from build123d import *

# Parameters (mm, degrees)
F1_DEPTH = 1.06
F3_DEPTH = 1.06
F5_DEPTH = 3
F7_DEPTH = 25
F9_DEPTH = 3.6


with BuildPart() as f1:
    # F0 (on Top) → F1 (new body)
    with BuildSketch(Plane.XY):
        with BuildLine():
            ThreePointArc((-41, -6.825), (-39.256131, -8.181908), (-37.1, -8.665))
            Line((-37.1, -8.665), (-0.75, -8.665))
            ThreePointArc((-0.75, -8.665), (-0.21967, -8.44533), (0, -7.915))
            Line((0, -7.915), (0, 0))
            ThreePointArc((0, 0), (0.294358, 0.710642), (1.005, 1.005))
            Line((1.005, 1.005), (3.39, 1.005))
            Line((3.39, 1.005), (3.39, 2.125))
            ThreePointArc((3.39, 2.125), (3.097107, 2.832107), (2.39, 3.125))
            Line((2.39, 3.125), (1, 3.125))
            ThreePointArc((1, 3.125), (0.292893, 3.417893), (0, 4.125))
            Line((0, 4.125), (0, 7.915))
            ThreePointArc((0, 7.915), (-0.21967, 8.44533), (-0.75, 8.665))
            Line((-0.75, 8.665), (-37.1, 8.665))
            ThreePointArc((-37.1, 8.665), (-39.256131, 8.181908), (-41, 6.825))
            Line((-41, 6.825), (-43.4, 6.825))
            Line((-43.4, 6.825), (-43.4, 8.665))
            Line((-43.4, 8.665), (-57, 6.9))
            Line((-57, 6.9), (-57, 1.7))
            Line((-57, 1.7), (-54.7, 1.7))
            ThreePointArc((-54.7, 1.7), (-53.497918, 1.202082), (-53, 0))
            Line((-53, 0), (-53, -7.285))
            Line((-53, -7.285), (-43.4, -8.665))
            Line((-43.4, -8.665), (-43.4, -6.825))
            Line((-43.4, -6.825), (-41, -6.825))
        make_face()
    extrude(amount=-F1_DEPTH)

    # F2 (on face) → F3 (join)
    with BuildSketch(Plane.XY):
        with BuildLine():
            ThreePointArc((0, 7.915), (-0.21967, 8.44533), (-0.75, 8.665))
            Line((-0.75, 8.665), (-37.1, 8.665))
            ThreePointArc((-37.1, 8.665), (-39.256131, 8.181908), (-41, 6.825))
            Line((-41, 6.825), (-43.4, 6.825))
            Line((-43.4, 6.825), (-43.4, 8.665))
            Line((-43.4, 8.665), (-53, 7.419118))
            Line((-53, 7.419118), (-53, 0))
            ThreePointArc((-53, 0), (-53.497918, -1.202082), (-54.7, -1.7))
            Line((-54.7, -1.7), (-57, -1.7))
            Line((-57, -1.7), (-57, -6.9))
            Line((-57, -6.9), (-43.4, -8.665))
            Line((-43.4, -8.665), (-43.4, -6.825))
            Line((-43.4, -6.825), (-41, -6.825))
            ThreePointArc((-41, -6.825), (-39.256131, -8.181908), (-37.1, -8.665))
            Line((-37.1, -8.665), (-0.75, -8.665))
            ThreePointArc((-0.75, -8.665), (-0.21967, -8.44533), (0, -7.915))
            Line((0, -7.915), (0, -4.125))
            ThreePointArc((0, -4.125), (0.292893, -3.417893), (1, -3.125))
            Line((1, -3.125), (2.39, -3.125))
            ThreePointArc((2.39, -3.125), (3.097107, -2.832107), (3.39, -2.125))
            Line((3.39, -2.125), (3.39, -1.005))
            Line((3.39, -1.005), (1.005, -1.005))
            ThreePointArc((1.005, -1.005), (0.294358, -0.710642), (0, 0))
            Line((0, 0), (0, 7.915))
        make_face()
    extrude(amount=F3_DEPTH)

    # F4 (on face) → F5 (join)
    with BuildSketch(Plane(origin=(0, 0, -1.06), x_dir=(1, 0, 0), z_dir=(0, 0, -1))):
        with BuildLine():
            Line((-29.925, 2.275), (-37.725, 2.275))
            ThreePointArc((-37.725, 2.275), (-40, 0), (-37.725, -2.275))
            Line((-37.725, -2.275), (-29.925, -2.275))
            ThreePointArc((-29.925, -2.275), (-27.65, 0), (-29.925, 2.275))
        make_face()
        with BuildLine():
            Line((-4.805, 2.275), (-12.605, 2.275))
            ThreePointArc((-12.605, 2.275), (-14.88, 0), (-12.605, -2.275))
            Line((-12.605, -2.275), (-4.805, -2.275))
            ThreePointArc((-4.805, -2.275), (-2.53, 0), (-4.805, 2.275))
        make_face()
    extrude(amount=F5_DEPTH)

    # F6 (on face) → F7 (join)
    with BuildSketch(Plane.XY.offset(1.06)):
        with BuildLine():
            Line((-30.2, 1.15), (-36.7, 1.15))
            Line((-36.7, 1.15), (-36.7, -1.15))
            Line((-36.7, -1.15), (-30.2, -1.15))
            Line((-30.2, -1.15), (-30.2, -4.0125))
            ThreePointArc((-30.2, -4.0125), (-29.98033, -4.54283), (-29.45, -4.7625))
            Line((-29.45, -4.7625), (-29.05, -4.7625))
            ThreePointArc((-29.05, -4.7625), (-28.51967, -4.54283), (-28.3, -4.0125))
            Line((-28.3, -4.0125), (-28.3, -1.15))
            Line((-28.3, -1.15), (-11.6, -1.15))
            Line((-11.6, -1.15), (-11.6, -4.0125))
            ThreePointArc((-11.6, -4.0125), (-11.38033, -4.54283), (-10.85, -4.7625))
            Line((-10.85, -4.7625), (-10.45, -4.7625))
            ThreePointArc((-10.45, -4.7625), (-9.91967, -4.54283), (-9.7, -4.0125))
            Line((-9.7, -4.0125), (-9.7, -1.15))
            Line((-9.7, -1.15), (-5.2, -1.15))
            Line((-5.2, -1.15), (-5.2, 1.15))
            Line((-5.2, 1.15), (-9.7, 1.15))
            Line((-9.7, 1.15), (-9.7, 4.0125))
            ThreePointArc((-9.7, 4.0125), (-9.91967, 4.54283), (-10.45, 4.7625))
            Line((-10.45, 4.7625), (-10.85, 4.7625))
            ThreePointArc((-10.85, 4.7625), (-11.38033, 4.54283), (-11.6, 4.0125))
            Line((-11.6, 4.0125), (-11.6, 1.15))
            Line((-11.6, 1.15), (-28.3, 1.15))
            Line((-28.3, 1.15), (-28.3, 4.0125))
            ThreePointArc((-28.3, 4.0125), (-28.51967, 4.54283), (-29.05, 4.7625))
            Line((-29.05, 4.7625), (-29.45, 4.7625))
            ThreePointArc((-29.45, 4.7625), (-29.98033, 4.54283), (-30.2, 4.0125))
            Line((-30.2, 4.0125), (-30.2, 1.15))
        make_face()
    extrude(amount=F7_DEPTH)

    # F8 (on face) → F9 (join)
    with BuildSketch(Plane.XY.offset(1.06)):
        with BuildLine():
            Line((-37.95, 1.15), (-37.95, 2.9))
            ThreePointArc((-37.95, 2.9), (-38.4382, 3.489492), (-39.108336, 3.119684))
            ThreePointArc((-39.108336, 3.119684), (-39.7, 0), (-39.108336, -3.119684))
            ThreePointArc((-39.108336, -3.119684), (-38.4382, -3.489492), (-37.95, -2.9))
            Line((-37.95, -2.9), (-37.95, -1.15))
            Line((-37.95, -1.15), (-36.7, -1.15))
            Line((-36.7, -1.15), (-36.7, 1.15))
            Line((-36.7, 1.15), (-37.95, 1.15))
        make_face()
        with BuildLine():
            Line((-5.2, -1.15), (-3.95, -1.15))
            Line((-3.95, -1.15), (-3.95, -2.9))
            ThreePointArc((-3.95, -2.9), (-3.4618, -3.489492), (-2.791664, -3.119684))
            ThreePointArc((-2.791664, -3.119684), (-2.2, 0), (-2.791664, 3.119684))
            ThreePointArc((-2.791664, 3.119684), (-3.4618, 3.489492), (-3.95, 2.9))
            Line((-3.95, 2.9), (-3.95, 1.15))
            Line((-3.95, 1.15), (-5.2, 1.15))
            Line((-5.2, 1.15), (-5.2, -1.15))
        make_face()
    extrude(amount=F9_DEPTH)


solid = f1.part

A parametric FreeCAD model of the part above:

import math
import FreeCAD as App
import Part
import Sketcher

V = App.Vector
Q = App.Units.Quantity

doc = App.newDocument("Part")
body = doc.addObject("PartDesign::Body", "Body")

sketch1 = doc.addObject("Sketcher::SketchObject", "Sketch")
body.addObject(sketch1)
sketch1.AttachmentSupport = (doc.XY_Plane, [""])
sketch1.MapMode = "FlatFace"
sketch1.addGeometry([
    Part.ArcOfCircle(Part.Circle(V(-37.1, -3.6, 0), V(0, 0, 1), 5.1), math.radians(-141), math.radians(-90)),
    Part.LineSegment(V(-37.1, -8.7, 0), V(-0.8, -8.7, 0)),
    Part.ArcOfCircle(Part.Circle(V(-0.8, -7.9, 0), V(0, 0, 1), 0.8), math.radians(-90), math.radians(0)),
    Part.LineSegment(V(0, -7.9, 0), V(0, 0, 0)),
    Part.ArcOfCircle(Part.Circle(V(1, 0, 0), V(0, 0, 1), 1), math.radians(90), math.radians(180)),
    Part.LineSegment(V(1, 1, 0), V(3.4, 1, 0)),
    Part.LineSegment(V(3.4, 1, 0), V(3.4, 2.1, 0)),
    Part.ArcOfCircle(Part.Circle(V(2.4, 2.1, 0), V(0, 0, 1), 1), math.radians(0), math.radians(90)),
    Part.LineSegment(V(2.4, 3.1, 0), V(1, 3.1, 0)),
    Part.ArcOfCircle(Part.Circle(V(1, 4.1, 0), V(0, 0, 1), 1), math.radians(180), math.radians(270)),
    Part.LineSegment(V(0, 4.1, 0), V(0, 7.9, 0)),
    Part.ArcOfCircle(Part.Circle(V(-0.8, 7.9, 0), V(0, 0, 1), 0.8), math.radians(0), math.radians(90)),
    Part.LineSegment(V(-0.8, 8.7, 0), V(-37.1, 8.7, 0)),
    Part.ArcOfCircle(Part.Circle(V(-37.1, 3.6, 0), V(0, 0, 1), 5.1), math.radians(90), math.radians(141)),
    Part.LineSegment(V(-41, 6.8, 0), V(-43.4, 6.8, 0)),
    Part.LineSegment(V(-43.4, 6.8, 0), V(-43.4, 8.7, 0)),
    Part.LineSegment(V(-43.4, 8.7, 0), V(-57, 6.9, 0)),
    Part.LineSegment(V(-57, 6.9, 0), V(-57, 1.7, 0)),
    Part.LineSegment(V(-57, 1.7, 0), V(-54.7, 1.7, 0)),
    Part.ArcOfCircle(Part.Circle(V(-54.7, 0, 0), V(0, 0, 1), 1.7), math.radians(0), math.radians(90)),
    Part.LineSegment(V(-53, 0, 0), V(-53, -7.3, 0)),
    Part.LineSegment(V(-53, -7.3, 0), V(-43.4, -8.7, 0)),
    Part.LineSegment(V(-43.4, -8.7, 0), V(-43.4, -6.8, 0)),
    Part.LineSegment(V(-43.4, -6.8, 0), V(-41, -6.8, 0)),
], False)
sketch1.addConstraint([
    Sketcher.Constraint("Tangent", 0, 2, 1, 1),
    Sketcher.Constraint("Tangent", 1, 2, 2, 1),
    Sketcher.Constraint("Tangent", 2, 2, 3, 1),
    Sketcher.Constraint("Tangent", 3, 2, 4, 2),
    Sketcher.Constraint("Tangent", 4, 1, 5, 1),
    Sketcher.Constraint("Coincident", 5, 2, 6, 1),
    Sketcher.Constraint("Tangent", 6, 2, 7, 1),
    Sketcher.Constraint("Tangent", 7, 2, 8, 1),
    Sketcher.Constraint("Tangent", 8, 2, 9, 2),
    Sketcher.Constraint("Tangent", 9, 1, 10, 1),
    Sketcher.Constraint("Tangent", 10, 2, 11, 1),
    Sketcher.Constraint("Tangent", 11, 2, 12, 1),
    Sketcher.Constraint("Tangent", 12, 2, 13, 1),
    Sketcher.Constraint("Coincident", 13, 2, 14, 1),
    Sketcher.Constraint("Coincident", 14, 2, 15, 1),
    Sketcher.Constraint("Coincident", 15, 2, 16, 1),
    Sketcher.Constraint("Coincident", 16, 2, 17, 1),
    Sketcher.Constraint("Coincident", 17, 2, 18, 1),
    Sketcher.Constraint("Tangent", 18, 2, 19, 2),
    Sketcher.Constraint("Tangent", 19, 1, 20, 1),
    Sketcher.Constraint("Coincident", 20, 2, 21, 1),
    Sketcher.Constraint("Coincident", 21, 2, 22, 1),
    Sketcher.Constraint("Coincident", 22, 2, 23, 1),
    Sketcher.Constraint("Coincident", 23, 2, 0, 1),
    Sketcher.Constraint("Horizontal", 1),
    Sketcher.Constraint("Vertical", 3),
    Sketcher.Constraint("Horizontal", 5),
    Sketcher.Constraint("Vertical", 6),
    Sketcher.Constraint("Horizontal", 8),
    Sketcher.Constraint("Vertical", 10),
    Sketcher.Constraint("Horizontal", 12),
    Sketcher.Constraint("Horizontal", 14),
    Sketcher.Constraint("Vertical", 15),
    Sketcher.Constraint("Vertical", 17),
    Sketcher.Constraint("Horizontal", 18),
    Sketcher.Constraint("Vertical", 20),
    Sketcher.Constraint("Vertical", 22),
    Sketcher.Constraint("Horizontal", 23),
    Sketcher.Constraint("Coincident", 3, 2, -1, 1),
    Sketcher.Constraint("Equal", 7, 9),
    Sketcher.Constraint("Equal", 2, 11),
    Sketcher.Constraint("Equal", 0, 13),
    Sketcher.Constraint("Symmetric", 2, 2, 10, 2, -1, 1),
    Sketcher.Constraint("Symmetric", 15, 2, 21, 2, -1),
    Sketcher.Constraint("Symmetric", 13, 2, 23, 2, -1),
    Sketcher.Constraint("PointOnObject", 19, 3, -1),
    Sketcher.Constraint("Horizontal", 12, 2, 15, 2),
    Sketcher.Constraint("Radius", 7, Q("0.999999 mm")),
    Sketcher.Constraint("Radius", 19, Q("1.699998 mm")),
    Sketcher.Constraint("Radius", 2, Q("0.75 mm")),
    Sketcher.Constraint("DistanceX", 14, 2, 14, 1, Q("2.4 mm")),
    Sketcher.Constraint("DistanceX", 18, 1, 18, 2, Q("2.3 mm")),
    Sketcher.Constraint("DistanceY", 17, 2, 17, 1, Q("5.2 mm")),
    Sketcher.Constraint("DistanceX", 13, 2, -1, 1, Q("41 mm")),
    Sketcher.Constraint("DistanceX", 16, 2, -1, 1, Q("57 mm")),
    Sketcher.Constraint("Radius", 4, Q("1.005001 mm")),
    Sketcher.Constraint("DistanceX", 1, 1, 1, 2, Q("36.35 mm")),
    Sketcher.Constraint("DistanceX", 8, 2, 8, 1, Q("1.39 mm")),
    Sketcher.Constraint("DistanceY", 6, 1, 6, 2, Q("1.12 mm")),
    Sketcher.Constraint("DistanceY", 10, 1, 10, 2, Q("3.79 mm")),
    Sketcher.Constraint("DistanceY", 15, 1, 15, 2, Q("1.84 mm")),
    Sketcher.Constraint("DistanceY", 20, 2, 20, 1, Q("7.285 mm")),
])
pad1 = doc.addObject("PartDesign::Pad", "Pad")
body.addObject(pad1)
pad1.Profile = sketch1
pad1.Length = 1.06
pad1.Reversed = True

sketch2 = doc.addObject("Sketcher::SketchObject", "Sketch001")
body.addObject(sketch2)
sketch2.AttachmentSupport = (doc.XY_Plane, [""])
sketch2.MapMode = "FlatFace"
sketch2.addGeometry([
    Part.ArcOfCircle(Part.Circle(V(-0.8, 7.9, 0), V(0, 0, 1), 0.8), math.radians(0), math.radians(90)),
    Part.LineSegment(V(-0.8, 8.7, 0), V(-37.1, 8.7, 0)),
    Part.ArcOfCircle(Part.Circle(V(-37.1, 3.6, 0), V(0, 0, 1), 5.1), math.radians(90), math.radians(141)),
    Part.LineSegment(V(-41, 6.8, 0), V(-43.4, 6.8, 0)),
    Part.LineSegment(V(-43.4, 6.8, 0), V(-43.4, 8.7, 0)),
    Part.LineSegment(V(-43.4, 8.7, 0), V(-53, 7.4, 0)),
    Part.LineSegment(V(-53, 7.4, 0), V(-53, 0, 0)),
    Part.ArcOfCircle(Part.Circle(V(-54.7, 0, 0), V(0, 0, 1), 1.7), math.radians(-90), math.radians(0)),
    Part.LineSegment(V(-54.7, -1.7, 0), V(-57, -1.7, 0)),
    Part.LineSegment(V(-57, -1.7, 0), V(-57, -6.9, 0)),
    Part.LineSegment(V(-57, -6.9, 0), V(-43.4, -8.7, 0)),
    Part.LineSegment(V(-43.4, -8.7, 0), V(-43.4, -6.8, 0)),
    Part.LineSegment(V(-43.4, -6.8, 0), V(-41, -6.8, 0)),
    Part.ArcOfCircle(Part.Circle(V(-37.1, -3.6, 0), V(0, 0, 1), 5.1), math.radians(-141), math.radians(-90)),
    Part.LineSegment(V(-37.1, -8.7, 0), V(-0.8, -8.7, 0)),
    Part.ArcOfCircle(Part.Circle(V(-0.8, -7.9, 0), V(0, 0, 1), 0.8), math.radians(-90), math.radians(0)),
    Part.LineSegment(V(0, -7.9, 0), V(0, -4.1, 0)),
    Part.ArcOfCircle(Part.Circle(V(1, -4.1, 0), V(0, 0, 1), 1), math.radians(90), math.radians(180)),
    Part.LineSegment(V(1, -3.1, 0), V(2.4, -3.1, 0)),
    Part.ArcOfCircle(Part.Circle(V(2.4, -2.1, 0), V(0, 0, 1), 1), math.radians(-90), math.radians(0)),
    Part.LineSegment(V(3.4, -2.1, 0), V(3.4, -1, 0)),
    Part.LineSegment(V(3.4, -1, 0), V(1, -1, 0)),
    Part.ArcOfCircle(Part.Circle(V(1, 0, 0), V(0, 0, 1), 1), math.radians(-180), math.radians(-90)),
    Part.LineSegment(V(0, 0, 0), V(0, 7.9, 0)),
], False)
sketch2.addConstraint([
    Sketcher.Constraint("Tangent", 0, 2, 1, 1),
    Sketcher.Constraint("Tangent", 1, 2, 2, 1),
    Sketcher.Constraint("Coincident", 2, 2, 3, 1),
    Sketcher.Constraint("Coincident", 3, 2, 4, 1),
    Sketcher.Constraint("Coincident", 4, 2, 5, 1),
    Sketcher.Constraint("Coincident", 5, 2, 6, 1),
    Sketcher.Constraint("Tangent", 6, 2, 7, 2),
    Sketcher.Constraint("Tangent", 7, 1, 8, 1),
    Sketcher.Constraint("Coincident", 8, 2, 9, 1),
    Sketcher.Constraint("Coincident", 9, 2, 10, 1),
    Sketcher.Constraint("Coincident", 10, 2, 11, 1),
    Sketcher.Constraint("Coincident", 11, 2, 12, 1),
    Sketcher.Constraint("Coincident", 12, 2, 13, 1),
    Sketcher.Constraint("Tangent", 13, 2, 14, 1),
    Sketcher.Constraint("Tangent", 14, 2, 15, 1),
    Sketcher.Constraint("Tangent", 15, 2, 16, 1),
    Sketcher.Constraint("Tangent", 16, 2, 17, 2),
    Sketcher.Constraint("Tangent", 17, 1, 18, 1),
    Sketcher.Constraint("Tangent", 18, 2, 19, 1),
    Sketcher.Constraint("Tangent", 19, 2, 20, 1),
    Sketcher.Constraint("Coincident", 20, 2, 21, 1),
    Sketcher.Constraint("Tangent", 21, 2, 22, 2),
    Sketcher.Constraint("Tangent", 22, 1, 23, 1),
    Sketcher.Constraint("Tangent", 23, 2, 0, 1),
    Sketcher.Constraint("Horizontal", 1),
    Sketcher.Constraint("Horizontal", 3),
    Sketcher.Constraint("Vertical", 4),
    Sketcher.Constraint("Vertical", 6),
    Sketcher.Constraint("Horizontal", 8),
    Sketcher.Constraint("Vertical", 9),
    Sketcher.Constraint("Vertical", 11),
    Sketcher.Constraint("Horizontal", 12),
    Sketcher.Constraint("Horizontal", 14),
    Sketcher.Constraint("Vertical", 16),
    Sketcher.Constraint("Horizontal", 18),
    Sketcher.Constraint("Vertical", 20),
    Sketcher.Constraint("Horizontal", 21),
    Sketcher.Constraint("Vertical", 23),
    Sketcher.Constraint("Coincident", 22, 1, -1, 1),
    Sketcher.Constraint("Equal", 2, 13),
    Sketcher.Constraint("Equal", 0, 15),
    Sketcher.Constraint("Equal", 17, 19),
    Sketcher.Constraint("Symmetric", 15, 2, 23, 2, -1, 1),
    Sketcher.Constraint("Symmetric", 4, 2, 10, 2, -1),
    Sketcher.Constraint("Symmetric", 2, 2, 12, 2, -1),
    Sketcher.Constraint("PointOnObject", 7, 3, -1),
    Sketcher.Constraint("Horizontal", 1, 2, 4, 2),
    Sketcher.Constraint("Radius", 17, Q("0.999999 mm")),
    Sketcher.Constraint("Radius", 7, Q("1.699998 mm")),
    Sketcher.Constraint("Radius", 0, Q("0.75 mm")),
    Sketcher.Constraint("DistanceX", 3, 2, 3, 1, Q("2.4 mm")),
    Sketcher.Constraint("DistanceX", 8, 2, 8, 1, Q("2.3 mm")),
    Sketcher.Constraint("DistanceY", 9, 2, 9, 1, Q("5.2 mm")),
    Sketcher.Constraint("DistanceX", 2, 2, -1, 1, Q("41 mm")),
    Sketcher.Constraint("DistanceX", 5, 2, -1, 1, Q("53 mm")),
    Sketcher.Constraint("Radius", 22, Q("1.005001 mm")),
    Sketcher.Constraint("DistanceX", 1, 2, 1, 1, Q("36.35 mm")),
    Sketcher.Constraint("DistanceX", 18, 1, 18, 2, Q("1.39 mm")),
    Sketcher.Constraint("DistanceY", 4, 1, 4, 2, Q("1.84 mm")),
    Sketcher.Constraint("DistanceY", 16, 1, 16, 2, Q("3.79 mm")),
    Sketcher.Constraint("DistanceY", 20, 1, 20, 2, Q("1.12 mm")),
    Sketcher.Constraint("DistanceY", 6, 2, 6, 1, Q("7.419118 mm")),
])
pad2 = doc.addObject("PartDesign::Pad", "Pad001")
body.addObject(pad2)
pad2.Profile = sketch2
pad2.Length = 1.06

sketch3 = doc.addObject("Sketcher::SketchObject", "Sketch002")
body.addObject(sketch3)
sketch3.AttachmentSupport = (doc.XY_Plane, [""])
sketch3.MapMode = "FlatFace"
sketch3.AttachmentOffset = App.Placement(V(0, 0, -1.06), App.Rotation())
sketch3.addGeometry([
    Part.LineSegment(V(-29.9, -2.3, 0), V(-37.7, -2.3, 0)),
    Part.ArcOfCircle(Part.Circle(V(-37.7, 0, 0), V(0, 0, 1), 2.3), math.radians(90), math.radians(270)),
    Part.LineSegment(V(-37.7, 2.3, 0), V(-29.9, 2.3, 0)),
    Part.ArcOfCircle(Part.Circle(V(-29.9, 0, 0), V(0, 0, 1), 2.3), math.radians(-90), math.radians(90)),
    Part.LineSegment(V(-4.8, -2.3, 0), V(-12.6, -2.3, 0)),
    Part.ArcOfCircle(Part.Circle(V(-12.6, 0, 0), V(0, 0, 1), 2.3), math.radians(90), math.radians(270)),
    Part.LineSegment(V(-12.6, 2.3, 0), V(-4.8, 2.3, 0)),
    Part.ArcOfCircle(Part.Circle(V(-4.8, 0, 0), V(0, 0, 1), 2.3), math.radians(-90), math.radians(90)),
], False)
sketch3.addConstraint([
    Sketcher.Constraint("Tangent", 0, 2, 1, 2),
    Sketcher.Constraint("Tangent", 1, 1, 2, 1),
    Sketcher.Constraint("Tangent", 2, 2, 3, 2),
    Sketcher.Constraint("Tangent", 3, 1, 0, 1),
    Sketcher.Constraint("Tangent", 4, 2, 5, 2),
    Sketcher.Constraint("Tangent", 5, 1, 6, 1),
    Sketcher.Constraint("Tangent", 6, 2, 7, 2),
    Sketcher.Constraint("Tangent", 7, 1, 4, 1),
    Sketcher.Constraint("Horizontal", 0),
    Sketcher.Constraint("Horizontal", 2),
    Sketcher.Constraint("Horizontal", 4),
    Sketcher.Constraint("Horizontal", 6),
    Sketcher.Constraint("Equal", 3, 5),
    Sketcher.Constraint("PointOnObject", 1, 3, -1),
    Sketcher.Constraint("PointOnObject", 5, 3, -1),
    Sketcher.Constraint("Equal", 2, 4),
    Sketcher.Constraint("DistanceX", 0, 2, 0, 1, Q("7.8 mm")),
    Sketcher.Constraint("Radius", 1, Q("2.275 mm")),
    Sketcher.Constraint("DistanceX", 3, 3, 5, 3, Q("17.32 mm")),
    Sketcher.Constraint("DistanceX", 1, 3, -1, 1, Q("37.725 mm")),
])
pad3 = doc.addObject("PartDesign::Pad", "Pad002")
body.addObject(pad3)
pad3.Profile = sketch3
pad3.Length = 3
pad3.Reversed = True

sketch4 = doc.addObject("Sketcher::SketchObject", "Sketch003")
body.addObject(sketch4)
sketch4.AttachmentSupport = (doc.XY_Plane, [""])
sketch4.MapMode = "FlatFace"
sketch4.AttachmentOffset = App.Placement(V(0, 0, 1.06), App.Rotation())
sketch4.addGeometry([
    Part.LineSegment(V(-30.2, 1.15, 0), V(-36.7, 1.15, 0)),
    Part.LineSegment(V(-36.7, 1.15, 0), V(-36.7, -1.15, 0)),
    Part.LineSegment(V(-36.7, -1.15, 0), V(-30.2, -1.15, 0)),
    Part.LineSegment(V(-30.2, -1.15, 0), V(-30.2, -4.01, 0)),
    Part.ArcOfCircle(Part.Circle(V(-29.45, -4.01, 0), V(0, 0, 1), 0.75), math.radians(-180), math.radians(-90)),
    Part.LineSegment(V(-29.45, -4.76, 0), V(-29.05, -4.76, 0)),
    Part.ArcOfCircle(Part.Circle(V(-29.05, -4.01, 0), V(0, 0, 1), 0.75), math.radians(-90), math.radians(0)),
    Part.LineSegment(V(-28.3, -4.01, 0), V(-28.3, -1.15, 0)),
    Part.LineSegment(V(-28.3, -1.15, 0), V(-11.6, -1.15, 0)),
    Part.LineSegment(V(-11.6, -1.15, 0), V(-11.6, -4.01, 0)),
    Part.ArcOfCircle(Part.Circle(V(-10.85, -4.01, 0), V(0, 0, 1), 0.75), math.radians(-180), math.radians(-90)),
    Part.LineSegment(V(-10.85, -4.76, 0), V(-10.45, -4.76, 0)),
    Part.ArcOfCircle(Part.Circle(V(-10.45, -4.01, 0), V(0, 0, 1), 0.75), math.radians(-90), math.radians(0)),
    Part.LineSegment(V(-9.7, -4.01, 0), V(-9.7, -1.15, 0)),
    Part.LineSegment(V(-9.7, -1.15, 0), V(-5.2, -1.15, 0)),
    Part.LineSegment(V(-5.2, -1.15, 0), V(-5.2, 1.15, 0)),
    Part.LineSegment(V(-5.2, 1.15, 0), V(-9.7, 1.15, 0)),
    Part.LineSegment(V(-9.7, 1.15, 0), V(-9.7, 4.01, 0)),
    Part.ArcOfCircle(Part.Circle(V(-10.45, 4.01, 0), V(0, 0, 1), 0.75), math.radians(0), math.radians(90)),
    Part.LineSegment(V(-10.45, 4.76, 0), V(-10.85, 4.76, 0)),
    Part.ArcOfCircle(Part.Circle(V(-10.85, 4.01, 0), V(0, 0, 1), 0.75), math.radians(90), math.radians(180)),
    Part.LineSegment(V(-11.6, 4.01, 0), V(-11.6, 1.15, 0)),
    Part.LineSegment(V(-11.6, 1.15, 0), V(-28.3, 1.15, 0)),
    Part.LineSegment(V(-28.3, 1.15, 0), V(-28.3, 4.01, 0)),
    Part.ArcOfCircle(Part.Circle(V(-29.05, 4.01, 0), V(0, 0, 1), 0.75), math.radians(0), math.radians(90)),
    Part.LineSegment(V(-29.05, 4.76, 0), V(-29.45, 4.76, 0)),
    Part.ArcOfCircle(Part.Circle(V(-29.45, 4.01, 0), V(0, 0, 1), 0.75), math.radians(90), math.radians(180)),
    Part.LineSegment(V(-30.2, 4.01, 0), V(-30.2, 1.15, 0)),
], False)
sketch4.addConstraint([
    Sketcher.Constraint("Coincident", 0, 2, 1, 1),
    Sketcher.Constraint("Coincident", 1, 2, 2, 1),
    Sketcher.Constraint("Coincident", 2, 2, 3, 1),
    Sketcher.Constraint("Tangent", 3, 2, 4, 1),
    Sketcher.Constraint("Tangent", 4, 2, 5, 1),
    Sketcher.Constraint("Tangent", 5, 2, 6, 1),
    Sketcher.Constraint("Tangent", 6, 2, 7, 1),
    Sketcher.Constraint("Coincident", 7, 2, 8, 1),
    Sketcher.Constraint("Coincident", 8, 2, 9, 1),
    Sketcher.Constraint("Tangent", 9, 2, 10, 1),
    Sketcher.Constraint("Tangent", 10, 2, 11, 1),
    Sketcher.Constraint("Tangent", 11, 2, 12, 1),
    Sketcher.Constraint("Tangent", 12, 2, 13, 1),
    Sketcher.Constraint("Coincident", 13, 2, 14, 1),
    Sketcher.Constraint("Coincident", 14, 2, 15, 1),
    Sketcher.Constraint("Coincident", 15, 2, 16, 1),
    Sketcher.Constraint("Coincident", 16, 2, 17, 1),
    Sketcher.Constraint("Tangent", 17, 2, 18, 1),
    Sketcher.Constraint("Tangent", 18, 2, 19, 1),
    Sketcher.Constraint("Tangent", 19, 2, 20, 1),
    Sketcher.Constraint("Tangent", 20, 2, 21, 1),
    Sketcher.Constraint("Coincident", 21, 2, 22, 1),
    Sketcher.Constraint("Coincident", 22, 2, 23, 1),
    Sketcher.Constraint("Tangent", 23, 2, 24, 1),
    Sketcher.Constraint("Tangent", 24, 2, 25, 1),
    Sketcher.Constraint("Tangent", 25, 2, 26, 1),
    Sketcher.Constraint("Tangent", 26, 2, 27, 1),
    Sketcher.Constraint("Coincident", 27, 2, 0, 1),
    Sketcher.Constraint("Horizontal", 0),
    Sketcher.Constraint("Vertical", 1),
    Sketcher.Constraint("Horizontal", 2),
    Sketcher.Constraint("Vertical", 3),
    Sketcher.Constraint("Horizontal", 5),
    Sketcher.Constraint("Vertical", 7),
    Sketcher.Constraint("Horizontal", 8),
    Sketcher.Constraint("Vertical", 9),
    Sketcher.Constraint("Horizontal", 11),
    Sketcher.Constraint("Vertical", 13),
    Sketcher.Constraint("Horizontal", 14),
    Sketcher.Constraint("Vertical", 15),
    Sketcher.Constraint("Horizontal", 16),
    Sketcher.Constraint("Vertical", 17),
    Sketcher.Constraint("Horizontal", 19),
    Sketcher.Constraint("Vertical", 21),
    Sketcher.Constraint("Horizontal", 22),
    Sketcher.Constraint("Vertical", 23),
    Sketcher.Constraint("Horizontal", 25),
    Sketcher.Constraint("Vertical", 27),
    Sketcher.Constraint("Equal", 4, 6),
    Sketcher.Constraint("Equal", 6, 10),
    Sketcher.Constraint("Equal", 10, 12),
    Sketcher.Constraint("Equal", 12, 18),
    Sketcher.Constraint("Equal", 18, 20),
    Sketcher.Constraint("Equal", 20, 24),
    Sketcher.Constraint("Equal", 24, 26),
    Sketcher.Constraint("Symmetric", 12, 3, 18, 3, -1),
    Sketcher.Constraint("Symmetric", 6, 3, 24, 3, -1),
    Sketcher.Constraint("Symmetric", 8, 2, 21, 2, -1),
    Sketcher.Constraint("Symmetric", 2, 2, 27, 2, -1),
    Sketcher.Constraint("Horizontal", 6, 3, 10, 3),
    Sketcher.Constraint("Horizontal", 2, 2, 7, 2),
    Sketcher.Constraint("Horizontal", 8, 2, 13, 2),
    Sketcher.Constraint("Horizontal", 0, 2, 15, 2),
    Sketcher.Constraint("Equal", 5, 11),
    Sketcher.Constraint("Radius", 4, Q("0.75 mm")),
    Sketcher.Constraint("DistanceX", 0, 2, 0, 1, Q("6.5 mm")),
    Sketcher.Constraint("DistanceX", 5, 1, 5, 2, Q("0.4 mm")),
    Sketcher.Constraint("DistanceX", 8, 1, 8, 2, Q("16.7 mm")),
    Sketcher.Constraint("DistanceX", 14, 1, 14, 2, Q("4.5 mm")),
    Sketcher.Constraint("DistanceY", 1, 2, 1, 1, Q("2.3 mm")),
    Sketcher.Constraint("DistanceX", 0, 2, -1, 1, Q("36.7 mm")),
    Sketcher.Constraint("DistanceY", 3, 2, 3, 1, Q("2.8625 mm")),
])
pad4 = doc.addObject("PartDesign::Pad", "Pad003")
body.addObject(pad4)
pad4.Profile = sketch4
pad4.Length = 25

sketch5 = doc.addObject("Sketcher::SketchObject", "Sketch004")
body.addObject(sketch5)
sketch5.AttachmentSupport = (doc.XY_Plane, [""])
sketch5.MapMode = "FlatFace"
sketch5.AttachmentOffset = App.Placement(V(0, 0, 1.06), App.Rotation())
sketch5.addGeometry([
    Part.LineSegment(V(-38, 1.1, 0), V(-38, 2.9, 0)),
    Part.ArcOfCircle(Part.Circle(V(-38.6, 2.9, 0), V(0, 0, 1), 0.6), math.radians(0), math.radians(159)),
    Part.ArcOfCircle(Part.Circle(V(-31.2, 0, 0), V(0, 0, 1), 8.5), math.radians(159), math.radians(201)),
    Part.ArcOfCircle(Part.Circle(V(-38.6, -2.9, 0), V(0, 0, 1), 0.6), math.radians(-159), math.radians(0)),
    Part.LineSegment(V(-38, -2.9, 0), V(-38, -1.1, 0)),
    Part.LineSegment(V(-38, -1.1, 0), V(-36.7, -1.1, 0)),
    Part.LineSegment(V(-36.7, -1.1, 0), V(-36.7, 1.1, 0)),
    Part.LineSegment(V(-36.7, 1.1, 0), V(-38, 1.1, 0)),
    Part.LineSegment(V(-5.2, -1.1, 0), V(-4, -1.1, 0)),
    Part.LineSegment(V(-4, -1.1, 0), V(-4, -2.9, 0)),
    Part.ArcOfCircle(Part.Circle(V(-3.3, -2.9, 0), V(0, 0, 1), 0.6), math.radians(-180), math.radians(-21)),
    Part.ArcOfCircle(Part.Circle(V(-10.7, 0, 0), V(0, 0, 1), 8.5), math.radians(-21), math.radians(21)),
    Part.ArcOfCircle(Part.Circle(V(-3.3, 2.9, 0), V(0, 0, 1), 0.6), math.radians(21), math.radians(180)),
    Part.LineSegment(V(-4, 2.9, 0), V(-4, 1.1, 0)),
    Part.LineSegment(V(-4, 1.1, 0), V(-5.2, 1.1, 0)),
    Part.LineSegment(V(-5.2, 1.1, 0), V(-5.2, -1.1, 0)),
], False)
sketch5.addConstraint([
    Sketcher.Constraint("Tangent", 0, 2, 1, 1),
    Sketcher.Constraint("Tangent", 1, 2, 2, 1),
    Sketcher.Constraint("Tangent", 2, 2, 3, 1),
    Sketcher.Constraint("Tangent", 3, 2, 4, 1),
    Sketcher.Constraint("Coincident", 4, 2, 5, 1),
    Sketcher.Constraint("Coincident", 5, 2, 6, 1),
    Sketcher.Constraint("Coincident", 6, 2, 7, 1),
    Sketcher.Constraint("Coincident", 7, 2, 0, 1),
    Sketcher.Constraint("Coincident", 8, 2, 9, 1),
    Sketcher.Constraint("Tangent", 9, 2, 10, 1),
    Sketcher.Constraint("Tangent", 10, 2, 11, 1),
    Sketcher.Constraint("Tangent", 11, 2, 12, 1),
    Sketcher.Constraint("Tangent", 12, 2, 13, 1),
    Sketcher.Constraint("Coincident", 13, 2, 14, 1),
    Sketcher.Constraint("Coincident", 14, 2, 15, 1),
    Sketcher.Constraint("Coincident", 15, 2, 8, 1),
    Sketcher.Constraint("Vertical", 0),
    Sketcher.Constraint("Vertical", 4),
    Sketcher.Constraint("Horizontal", 5),
    Sketcher.Constraint("Vertical", 6),
    Sketcher.Constraint("Horizontal", 7),
    Sketcher.Constraint("Horizontal", 8),
    Sketcher.Constraint("Vertical", 9),
    Sketcher.Constraint("Vertical", 13),
    Sketcher.Constraint("Horizontal", 14),
    Sketcher.Constraint("Vertical", 15),
    Sketcher.Constraint("Equal", 1, 3),
    Sketcher.Constraint("Equal", 3, 10),
    Sketcher.Constraint("Equal", 2, 11),
    Sketcher.Constraint("Equal", 10, 12),
    Sketcher.Constraint("Symmetric", 1, 3, 3, 3, -1),
    Sketcher.Constraint("Symmetric", 10, 3, 12, 3, -1),
    Sketcher.Constraint("Horizontal", 3, 3, 10, 3),
    Sketcher.Constraint("Horizontal", 5, 2, 8, 2),
    Sketcher.Constraint("Horizontal", 7, 2, 13, 2),
    Sketcher.Constraint("Equal", 7, 8),
    Sketcher.Constraint("Equal", 0, 4),
    Sketcher.Constraint("Radius", 1, Q("0.6 mm")),
    Sketcher.Constraint("DistanceY", 6, 1, 6, 2, Q("2.3 mm")),
    Sketcher.Constraint("DistanceX", 5, 1, 5, 2, Q("1.25 mm")),
    Sketcher.Constraint("DistanceY", 0, 1, 0, 2, Q("1.75 mm")),
    Sketcher.Constraint("DistanceX", 5, 2, -1, 1, Q("36.7 mm")),
    Sketcher.Constraint("DistanceX", 14, 2, -1, 1, Q("5.2 mm")),
    Sketcher.Constraint("Radius", 2, Q("8.520456 mm")),
])
pad5 = doc.addObject("PartDesign::Pad", "Pad004")
body.addObject(pad5)
pad5.Profile = sketch5
pad5.Length = 3.6

doc.recompute()
